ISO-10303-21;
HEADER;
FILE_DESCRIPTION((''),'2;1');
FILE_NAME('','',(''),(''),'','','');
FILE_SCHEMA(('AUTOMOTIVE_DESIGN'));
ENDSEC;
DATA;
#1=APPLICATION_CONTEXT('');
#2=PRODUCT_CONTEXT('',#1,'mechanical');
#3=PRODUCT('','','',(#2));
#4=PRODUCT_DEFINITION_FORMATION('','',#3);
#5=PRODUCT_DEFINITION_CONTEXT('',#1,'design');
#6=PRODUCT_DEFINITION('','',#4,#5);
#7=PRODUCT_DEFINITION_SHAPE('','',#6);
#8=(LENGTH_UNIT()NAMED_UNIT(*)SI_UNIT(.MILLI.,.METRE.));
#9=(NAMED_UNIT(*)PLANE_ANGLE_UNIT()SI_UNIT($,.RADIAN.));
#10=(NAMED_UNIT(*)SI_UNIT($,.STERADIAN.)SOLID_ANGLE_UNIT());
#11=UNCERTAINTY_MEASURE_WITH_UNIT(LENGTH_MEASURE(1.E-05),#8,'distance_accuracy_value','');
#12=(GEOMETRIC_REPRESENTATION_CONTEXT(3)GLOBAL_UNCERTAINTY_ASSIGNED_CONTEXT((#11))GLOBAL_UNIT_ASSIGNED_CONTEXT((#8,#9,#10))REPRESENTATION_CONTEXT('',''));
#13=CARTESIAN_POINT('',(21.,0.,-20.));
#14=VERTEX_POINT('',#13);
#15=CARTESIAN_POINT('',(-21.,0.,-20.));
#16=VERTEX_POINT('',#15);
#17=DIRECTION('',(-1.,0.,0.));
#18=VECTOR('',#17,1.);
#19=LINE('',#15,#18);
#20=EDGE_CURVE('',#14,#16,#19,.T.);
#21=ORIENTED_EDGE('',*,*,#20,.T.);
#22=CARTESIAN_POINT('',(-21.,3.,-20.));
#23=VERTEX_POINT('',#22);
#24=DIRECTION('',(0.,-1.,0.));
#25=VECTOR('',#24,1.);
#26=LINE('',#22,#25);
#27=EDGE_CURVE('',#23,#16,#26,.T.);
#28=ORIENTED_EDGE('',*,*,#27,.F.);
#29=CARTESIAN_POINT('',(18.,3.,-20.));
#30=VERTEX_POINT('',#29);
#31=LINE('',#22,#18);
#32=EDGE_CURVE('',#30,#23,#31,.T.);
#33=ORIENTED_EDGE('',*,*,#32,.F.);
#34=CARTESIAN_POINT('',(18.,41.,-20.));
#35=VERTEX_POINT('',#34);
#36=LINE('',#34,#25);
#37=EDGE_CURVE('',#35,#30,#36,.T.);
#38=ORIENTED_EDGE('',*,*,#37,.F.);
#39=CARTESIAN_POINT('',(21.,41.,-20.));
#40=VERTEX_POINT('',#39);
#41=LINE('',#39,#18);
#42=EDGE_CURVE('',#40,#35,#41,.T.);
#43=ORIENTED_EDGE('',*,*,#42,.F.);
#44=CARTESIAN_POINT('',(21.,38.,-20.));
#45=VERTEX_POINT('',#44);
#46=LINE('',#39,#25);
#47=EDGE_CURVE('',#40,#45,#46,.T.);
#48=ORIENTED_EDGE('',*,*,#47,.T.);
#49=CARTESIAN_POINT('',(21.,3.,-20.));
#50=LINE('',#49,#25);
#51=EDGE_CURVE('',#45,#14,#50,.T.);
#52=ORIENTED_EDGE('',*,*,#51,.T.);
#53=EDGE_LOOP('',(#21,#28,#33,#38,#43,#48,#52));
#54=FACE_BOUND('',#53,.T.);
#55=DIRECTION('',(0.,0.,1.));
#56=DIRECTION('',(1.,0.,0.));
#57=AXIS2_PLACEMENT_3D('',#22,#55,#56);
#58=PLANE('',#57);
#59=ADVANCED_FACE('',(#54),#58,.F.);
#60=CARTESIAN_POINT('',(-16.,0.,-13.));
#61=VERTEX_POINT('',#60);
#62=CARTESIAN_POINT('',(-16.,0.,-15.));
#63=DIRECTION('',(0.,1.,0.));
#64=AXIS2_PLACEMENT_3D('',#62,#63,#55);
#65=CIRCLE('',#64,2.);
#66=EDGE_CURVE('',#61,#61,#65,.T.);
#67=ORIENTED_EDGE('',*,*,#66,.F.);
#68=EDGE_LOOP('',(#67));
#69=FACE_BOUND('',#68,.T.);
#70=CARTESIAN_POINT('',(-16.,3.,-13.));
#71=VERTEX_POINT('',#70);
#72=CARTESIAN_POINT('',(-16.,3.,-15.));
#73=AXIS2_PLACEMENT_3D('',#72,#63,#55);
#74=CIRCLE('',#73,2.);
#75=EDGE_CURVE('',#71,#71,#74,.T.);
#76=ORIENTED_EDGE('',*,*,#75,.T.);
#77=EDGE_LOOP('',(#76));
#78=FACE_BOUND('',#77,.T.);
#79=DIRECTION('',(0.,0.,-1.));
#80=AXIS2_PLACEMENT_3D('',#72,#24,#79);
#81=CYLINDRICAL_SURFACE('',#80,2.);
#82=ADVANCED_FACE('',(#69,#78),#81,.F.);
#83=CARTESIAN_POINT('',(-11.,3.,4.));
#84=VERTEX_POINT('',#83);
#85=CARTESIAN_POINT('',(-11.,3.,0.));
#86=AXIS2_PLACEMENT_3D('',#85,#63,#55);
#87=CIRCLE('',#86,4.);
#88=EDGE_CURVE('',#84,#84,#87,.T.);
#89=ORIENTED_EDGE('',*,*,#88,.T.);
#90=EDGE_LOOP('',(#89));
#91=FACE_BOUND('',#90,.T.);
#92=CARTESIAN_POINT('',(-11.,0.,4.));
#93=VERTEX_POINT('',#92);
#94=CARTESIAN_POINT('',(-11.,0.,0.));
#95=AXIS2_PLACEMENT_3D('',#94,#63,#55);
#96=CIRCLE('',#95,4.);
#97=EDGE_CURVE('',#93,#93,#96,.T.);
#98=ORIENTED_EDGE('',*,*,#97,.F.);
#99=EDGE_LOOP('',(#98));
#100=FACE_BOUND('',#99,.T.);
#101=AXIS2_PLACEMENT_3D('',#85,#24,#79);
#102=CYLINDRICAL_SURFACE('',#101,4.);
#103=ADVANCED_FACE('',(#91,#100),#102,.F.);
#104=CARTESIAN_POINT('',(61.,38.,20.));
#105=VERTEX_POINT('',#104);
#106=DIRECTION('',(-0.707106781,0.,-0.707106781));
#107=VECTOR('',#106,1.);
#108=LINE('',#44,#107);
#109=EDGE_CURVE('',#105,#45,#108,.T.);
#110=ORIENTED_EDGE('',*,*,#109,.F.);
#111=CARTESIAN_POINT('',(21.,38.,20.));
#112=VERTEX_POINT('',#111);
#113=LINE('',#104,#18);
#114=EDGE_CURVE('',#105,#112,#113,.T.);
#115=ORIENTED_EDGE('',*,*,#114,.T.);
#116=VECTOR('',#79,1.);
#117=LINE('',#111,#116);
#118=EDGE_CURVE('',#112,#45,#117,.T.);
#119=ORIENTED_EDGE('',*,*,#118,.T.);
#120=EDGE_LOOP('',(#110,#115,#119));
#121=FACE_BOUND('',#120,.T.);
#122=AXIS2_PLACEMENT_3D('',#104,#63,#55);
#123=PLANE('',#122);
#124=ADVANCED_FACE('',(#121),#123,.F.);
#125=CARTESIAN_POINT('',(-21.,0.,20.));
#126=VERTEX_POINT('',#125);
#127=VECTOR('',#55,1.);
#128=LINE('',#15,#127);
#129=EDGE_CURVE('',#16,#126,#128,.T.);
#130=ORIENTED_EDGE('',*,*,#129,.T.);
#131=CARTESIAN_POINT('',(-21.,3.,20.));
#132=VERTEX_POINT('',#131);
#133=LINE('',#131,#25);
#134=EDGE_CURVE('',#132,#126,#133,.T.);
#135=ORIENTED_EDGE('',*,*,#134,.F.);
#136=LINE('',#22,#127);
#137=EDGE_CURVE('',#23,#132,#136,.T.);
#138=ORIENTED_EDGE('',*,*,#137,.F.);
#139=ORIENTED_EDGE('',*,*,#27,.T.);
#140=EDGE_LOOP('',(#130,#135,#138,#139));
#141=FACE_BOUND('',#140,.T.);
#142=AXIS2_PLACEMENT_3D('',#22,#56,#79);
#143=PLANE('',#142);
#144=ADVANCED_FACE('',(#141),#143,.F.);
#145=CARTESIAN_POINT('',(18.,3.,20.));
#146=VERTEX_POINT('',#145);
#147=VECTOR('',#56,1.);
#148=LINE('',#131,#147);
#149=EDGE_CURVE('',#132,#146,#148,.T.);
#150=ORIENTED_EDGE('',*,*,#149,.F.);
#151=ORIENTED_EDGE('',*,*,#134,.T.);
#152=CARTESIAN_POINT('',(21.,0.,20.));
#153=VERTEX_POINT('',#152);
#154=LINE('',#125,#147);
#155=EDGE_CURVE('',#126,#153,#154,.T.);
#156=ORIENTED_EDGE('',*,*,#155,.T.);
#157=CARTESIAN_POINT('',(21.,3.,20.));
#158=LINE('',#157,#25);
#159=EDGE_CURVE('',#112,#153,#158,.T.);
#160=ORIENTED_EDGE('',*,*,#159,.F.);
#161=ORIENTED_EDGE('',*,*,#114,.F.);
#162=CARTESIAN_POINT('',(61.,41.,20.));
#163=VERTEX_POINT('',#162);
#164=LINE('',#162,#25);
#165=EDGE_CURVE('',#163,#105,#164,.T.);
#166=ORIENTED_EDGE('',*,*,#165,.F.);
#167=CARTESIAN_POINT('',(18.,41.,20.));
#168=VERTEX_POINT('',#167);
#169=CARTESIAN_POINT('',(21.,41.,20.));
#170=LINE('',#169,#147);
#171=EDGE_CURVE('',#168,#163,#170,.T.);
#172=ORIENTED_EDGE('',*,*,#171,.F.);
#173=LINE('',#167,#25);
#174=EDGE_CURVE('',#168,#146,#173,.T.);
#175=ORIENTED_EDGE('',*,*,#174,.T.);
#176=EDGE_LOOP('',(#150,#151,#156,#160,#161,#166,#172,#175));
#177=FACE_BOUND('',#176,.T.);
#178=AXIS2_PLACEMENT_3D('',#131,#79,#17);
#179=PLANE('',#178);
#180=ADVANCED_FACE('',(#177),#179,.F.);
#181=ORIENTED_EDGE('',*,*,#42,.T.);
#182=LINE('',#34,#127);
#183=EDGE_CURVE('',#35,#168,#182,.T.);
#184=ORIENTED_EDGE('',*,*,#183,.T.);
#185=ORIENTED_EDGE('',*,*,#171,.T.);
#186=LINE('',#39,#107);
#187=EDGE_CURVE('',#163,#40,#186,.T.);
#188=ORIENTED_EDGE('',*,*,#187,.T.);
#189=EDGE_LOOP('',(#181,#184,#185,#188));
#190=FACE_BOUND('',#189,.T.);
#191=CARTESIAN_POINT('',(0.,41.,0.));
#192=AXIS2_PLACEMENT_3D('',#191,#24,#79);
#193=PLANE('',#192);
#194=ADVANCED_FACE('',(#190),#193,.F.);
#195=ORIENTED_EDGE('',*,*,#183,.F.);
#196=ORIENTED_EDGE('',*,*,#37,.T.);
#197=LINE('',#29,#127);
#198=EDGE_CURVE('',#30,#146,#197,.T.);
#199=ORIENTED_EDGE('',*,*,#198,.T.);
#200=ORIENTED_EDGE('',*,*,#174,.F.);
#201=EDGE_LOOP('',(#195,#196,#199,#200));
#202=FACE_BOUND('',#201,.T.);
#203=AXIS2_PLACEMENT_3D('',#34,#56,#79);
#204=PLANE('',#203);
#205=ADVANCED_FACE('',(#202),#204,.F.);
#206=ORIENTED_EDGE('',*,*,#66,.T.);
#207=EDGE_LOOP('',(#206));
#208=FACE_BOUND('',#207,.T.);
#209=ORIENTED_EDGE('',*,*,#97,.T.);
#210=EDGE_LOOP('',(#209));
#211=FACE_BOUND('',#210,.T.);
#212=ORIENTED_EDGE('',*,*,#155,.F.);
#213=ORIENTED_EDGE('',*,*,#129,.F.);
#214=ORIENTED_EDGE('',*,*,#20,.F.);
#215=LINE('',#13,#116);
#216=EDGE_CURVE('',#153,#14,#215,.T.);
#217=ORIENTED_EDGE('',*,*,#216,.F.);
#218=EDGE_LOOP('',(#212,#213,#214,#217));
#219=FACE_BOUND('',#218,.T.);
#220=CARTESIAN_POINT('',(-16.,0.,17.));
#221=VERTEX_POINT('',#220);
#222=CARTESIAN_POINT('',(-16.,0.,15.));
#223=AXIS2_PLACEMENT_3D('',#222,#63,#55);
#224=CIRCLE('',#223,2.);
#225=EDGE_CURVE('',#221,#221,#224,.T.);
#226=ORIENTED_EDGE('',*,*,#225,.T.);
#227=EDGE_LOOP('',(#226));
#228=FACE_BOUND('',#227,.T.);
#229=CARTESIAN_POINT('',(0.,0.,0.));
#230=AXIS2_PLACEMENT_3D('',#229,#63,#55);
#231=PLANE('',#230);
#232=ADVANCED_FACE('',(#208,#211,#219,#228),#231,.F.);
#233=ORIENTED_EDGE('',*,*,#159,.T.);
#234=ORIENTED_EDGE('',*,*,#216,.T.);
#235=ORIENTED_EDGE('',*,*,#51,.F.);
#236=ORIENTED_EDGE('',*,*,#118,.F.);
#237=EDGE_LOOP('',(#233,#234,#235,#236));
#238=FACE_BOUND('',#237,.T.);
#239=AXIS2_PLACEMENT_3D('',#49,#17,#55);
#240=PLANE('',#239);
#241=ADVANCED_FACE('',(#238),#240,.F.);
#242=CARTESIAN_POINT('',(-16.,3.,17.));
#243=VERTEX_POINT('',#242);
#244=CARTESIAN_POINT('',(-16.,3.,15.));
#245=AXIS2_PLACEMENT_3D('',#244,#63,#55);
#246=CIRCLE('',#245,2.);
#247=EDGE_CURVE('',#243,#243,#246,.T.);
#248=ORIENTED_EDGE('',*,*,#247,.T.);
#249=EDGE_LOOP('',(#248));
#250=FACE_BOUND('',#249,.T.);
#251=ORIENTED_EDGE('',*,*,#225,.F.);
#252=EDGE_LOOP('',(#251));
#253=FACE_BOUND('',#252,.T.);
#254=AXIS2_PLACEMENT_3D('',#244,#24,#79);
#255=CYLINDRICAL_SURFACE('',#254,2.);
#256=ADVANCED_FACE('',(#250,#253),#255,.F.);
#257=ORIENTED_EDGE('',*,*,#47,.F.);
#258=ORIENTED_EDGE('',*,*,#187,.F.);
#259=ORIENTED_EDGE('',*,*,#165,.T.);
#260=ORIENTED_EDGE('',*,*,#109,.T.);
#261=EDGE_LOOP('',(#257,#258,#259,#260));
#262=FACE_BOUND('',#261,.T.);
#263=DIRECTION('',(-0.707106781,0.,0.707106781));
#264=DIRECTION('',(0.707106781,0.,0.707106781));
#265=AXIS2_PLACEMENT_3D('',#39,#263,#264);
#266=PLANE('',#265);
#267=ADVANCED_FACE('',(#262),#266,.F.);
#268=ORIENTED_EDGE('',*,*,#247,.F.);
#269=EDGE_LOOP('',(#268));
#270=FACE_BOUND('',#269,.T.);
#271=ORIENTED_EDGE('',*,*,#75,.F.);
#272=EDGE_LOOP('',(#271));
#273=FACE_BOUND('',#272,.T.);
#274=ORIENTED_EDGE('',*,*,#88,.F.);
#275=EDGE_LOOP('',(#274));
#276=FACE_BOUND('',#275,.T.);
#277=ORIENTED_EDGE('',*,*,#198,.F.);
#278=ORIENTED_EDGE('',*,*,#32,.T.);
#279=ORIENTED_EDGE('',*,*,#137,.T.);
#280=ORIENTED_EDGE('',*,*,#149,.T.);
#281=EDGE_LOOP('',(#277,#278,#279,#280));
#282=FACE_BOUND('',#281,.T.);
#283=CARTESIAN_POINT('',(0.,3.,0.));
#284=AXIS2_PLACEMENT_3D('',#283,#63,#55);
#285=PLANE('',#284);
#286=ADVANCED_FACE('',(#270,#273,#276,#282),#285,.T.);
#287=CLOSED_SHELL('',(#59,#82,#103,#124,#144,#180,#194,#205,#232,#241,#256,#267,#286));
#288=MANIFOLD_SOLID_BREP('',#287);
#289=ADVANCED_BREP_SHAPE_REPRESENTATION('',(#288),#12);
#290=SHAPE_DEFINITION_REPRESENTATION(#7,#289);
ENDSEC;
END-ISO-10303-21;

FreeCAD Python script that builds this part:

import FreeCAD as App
import Part
import Sketcher

V = App.Vector


def add_polygon(sketch, points):
    """Adds a closed chain of lines whose ends are joined by coincident constraints."""
    first, n = sketch.GeometryCount, len(points)
    for a, b in zip(points, points[1:] + points[:1]):
        sketch.addGeometry(Part.LineSegment(App.Vector(*a, 0), App.Vector(*b, 0)), False)
    for i in range(n):
        sketch.addConstraint(Sketcher.Constraint("Coincident", first + i, 2, first + (i + 1) % n, 1))

doc = App.newDocument("Part")
body = doc.addObject("PartDesign::Body", "Body")

sketch1 = doc.addObject("Sketcher::SketchObject", "Sketch")
body.addObject(sketch1)
sketch1.AttachmentSupport = (doc.XZ_Plane, [""])
sketch1.MapMode = "FlatFace"
add_polygon(sketch1, [(-21, -20), (-21, 20), (21, 20), (21, -20)])
sketch1.addGeometry(Part.Circle(V(-16, 15, 0), V(0, 0, 1), 2), False)
sketch1.addGeometry(Part.Circle(V(-16, -15, 0), V(0, 0, 1), 2), False)
sketch1.addGeometry(Part.Circle(V(-11, 0, 0), V(0, 0, 1), 4), False)
sketch1.addConstraint([
    Sketcher.Constraint("Vertical", 0),
    Sketcher.Constraint("Horizontal", 1),
    Sketcher.Constraint("Vertical", 2),
    Sketcher.Constraint("Horizontal", 3),
    Sketcher.Constraint("Equal", 4, 5),
    Sketcher.Constraint("Symmetric", 0, 2, 2, 2, -1, 1),
    Sketcher.Constraint("Symmetric", 4, 3, 5, 3, -1),
    Sketcher.Constraint("PointOnObject", 6, 3, -1),
    Sketcher.Constraint("Diameter", 4, 4.0),
    Sketcher.Constraint("Diameter", 6, 8.0),
    Sketcher.Constraint("DistanceX", 1, 1, 1, 2, 42.0),
    Sketcher.Constraint("DistanceY", 0, 1, 0, 2, 40.0),
    Sketcher.Constraint("DistanceX", 4, 3, -1, 1, 16.0),
    Sketcher.Constraint("DistanceY", -1, 1, 4, 3, 15.0),
    Sketcher.Constraint("DistanceX", 6, 3, -1, 1, 11.0),
])
pad1 = doc.addObject("PartDesign::Pad", "Pad")
body.addObject(pad1)
pad1.Profile = sketch1
pad1.Length = 3
pad1.Reversed = True

sketch2 = doc.addObject("Sketcher::SketchObject", "Sketch001")
body.addObject(sketch2)
sketch2.AttachmentSupport = (doc.XZ_Plane, [""])
sketch2.MapMode = "FlatFace"
sketch2.AttachmentOffset = App.Placement(V(0, 0, -3), App.Rotation())
add_polygon(sketch2, [(18, -20), (18, 20), (21, 20), (21, -20)])
sketch2.addConstraint([
    Sketcher.Constraint("Vertical", 0),
    Sketcher.Constraint("Horizontal", 1),
    Sketcher.Constraint("Vertical", 2),
    Sketcher.Constraint("Horizontal", 3),
    Sketcher.Constraint("DistanceX", 1, 1, 1, 2, 3.0),
    Sketcher.Constraint("DistanceY", 0, 1, 0, 2, 40.0),
    Sketcher.Constraint("DistanceX", -1, 1, 0, 2, 18.0),
    Sketcher.Constraint("DistanceY", -1, 1, 0, 2, 20.0),
])
pad2 = doc.addObject("PartDesign::Pad", "Pad001")
body.addObject(pad2)
pad2.Profile = sketch2
pad2.Length = 38
pad2.Reversed = True

sketch3 = doc.addObject("Sketcher::SketchObject", "Sketch002")
body.addObject(sketch3)
sketch3.AttachmentSupport = (doc.YZ_Plane, [""])
sketch3.MapMode = "FlatFace"
sketch3.AttachmentOffset = App.Placement(V(0, 0, 21), App.Rotation())
add_polygon(sketch3, [(41, 20), (38, 20), (38, -20), (41, -20)])
sketch3.addConstraint([
    Sketcher.Constraint("Horizontal", 0),
    Sketcher.Constraint("Vertical", 1),
    Sketcher.Constraint("Horizontal", 2),
    Sketcher.Constraint("Vertical", 3),
    Sketcher.Constraint("DistanceX", 0, 2, 0, 1, 3.0),
    Sketcher.Constraint("DistanceY", 1, 2, 1, 1, 40.0),
    Sketcher.Constraint("DistanceX", -1, 1, 0, 2, 38.0),
    Sketcher.Constraint("DistanceY", -1, 1, 0, 2, 20.0),
])
pad3 = doc.addObject("PartDesign::Pad", "Pad002")
body.addObject(pad3)
pad3.Profile = sketch3
pad3.Length = 40

sketch4 = doc.addObject("Sketcher::SketchObject", "Sketch003")
body.addObject(sketch4)
sketch4.AttachmentSupport = (doc.XZ_Plane, [""])
sketch4.MapMode = "FlatFace"
sketch4.AttachmentOffset = App.Placement(V(0, 0, -38), App.Rotation())
add_polygon(sketch4, [(61, 20), (21, -20), (61, -20)])
sketch4.addConstraint([
    Sketcher.Constraint("Horizontal", 1),
    Sketcher.Constraint("Vertical", 2),
    Sketcher.Constraint("Equal", 1, 2),
    Sketcher.Constraint("DistanceX", 1, 1, 1, 2, 40.0),
    Sketcher.Constraint("DistanceX", -1, 1, 0, 2, 21.0),
    Sketcher.Constraint("DistanceY", 0, 2, -1, 1, 20.0),
])
pocket1 = doc.addObject("PartDesign::Pocket", "Pocket")
body.addObject(pocket1)
pocket1.Profile = sketch4
pocket1.Length = 3

doc.recompute()
